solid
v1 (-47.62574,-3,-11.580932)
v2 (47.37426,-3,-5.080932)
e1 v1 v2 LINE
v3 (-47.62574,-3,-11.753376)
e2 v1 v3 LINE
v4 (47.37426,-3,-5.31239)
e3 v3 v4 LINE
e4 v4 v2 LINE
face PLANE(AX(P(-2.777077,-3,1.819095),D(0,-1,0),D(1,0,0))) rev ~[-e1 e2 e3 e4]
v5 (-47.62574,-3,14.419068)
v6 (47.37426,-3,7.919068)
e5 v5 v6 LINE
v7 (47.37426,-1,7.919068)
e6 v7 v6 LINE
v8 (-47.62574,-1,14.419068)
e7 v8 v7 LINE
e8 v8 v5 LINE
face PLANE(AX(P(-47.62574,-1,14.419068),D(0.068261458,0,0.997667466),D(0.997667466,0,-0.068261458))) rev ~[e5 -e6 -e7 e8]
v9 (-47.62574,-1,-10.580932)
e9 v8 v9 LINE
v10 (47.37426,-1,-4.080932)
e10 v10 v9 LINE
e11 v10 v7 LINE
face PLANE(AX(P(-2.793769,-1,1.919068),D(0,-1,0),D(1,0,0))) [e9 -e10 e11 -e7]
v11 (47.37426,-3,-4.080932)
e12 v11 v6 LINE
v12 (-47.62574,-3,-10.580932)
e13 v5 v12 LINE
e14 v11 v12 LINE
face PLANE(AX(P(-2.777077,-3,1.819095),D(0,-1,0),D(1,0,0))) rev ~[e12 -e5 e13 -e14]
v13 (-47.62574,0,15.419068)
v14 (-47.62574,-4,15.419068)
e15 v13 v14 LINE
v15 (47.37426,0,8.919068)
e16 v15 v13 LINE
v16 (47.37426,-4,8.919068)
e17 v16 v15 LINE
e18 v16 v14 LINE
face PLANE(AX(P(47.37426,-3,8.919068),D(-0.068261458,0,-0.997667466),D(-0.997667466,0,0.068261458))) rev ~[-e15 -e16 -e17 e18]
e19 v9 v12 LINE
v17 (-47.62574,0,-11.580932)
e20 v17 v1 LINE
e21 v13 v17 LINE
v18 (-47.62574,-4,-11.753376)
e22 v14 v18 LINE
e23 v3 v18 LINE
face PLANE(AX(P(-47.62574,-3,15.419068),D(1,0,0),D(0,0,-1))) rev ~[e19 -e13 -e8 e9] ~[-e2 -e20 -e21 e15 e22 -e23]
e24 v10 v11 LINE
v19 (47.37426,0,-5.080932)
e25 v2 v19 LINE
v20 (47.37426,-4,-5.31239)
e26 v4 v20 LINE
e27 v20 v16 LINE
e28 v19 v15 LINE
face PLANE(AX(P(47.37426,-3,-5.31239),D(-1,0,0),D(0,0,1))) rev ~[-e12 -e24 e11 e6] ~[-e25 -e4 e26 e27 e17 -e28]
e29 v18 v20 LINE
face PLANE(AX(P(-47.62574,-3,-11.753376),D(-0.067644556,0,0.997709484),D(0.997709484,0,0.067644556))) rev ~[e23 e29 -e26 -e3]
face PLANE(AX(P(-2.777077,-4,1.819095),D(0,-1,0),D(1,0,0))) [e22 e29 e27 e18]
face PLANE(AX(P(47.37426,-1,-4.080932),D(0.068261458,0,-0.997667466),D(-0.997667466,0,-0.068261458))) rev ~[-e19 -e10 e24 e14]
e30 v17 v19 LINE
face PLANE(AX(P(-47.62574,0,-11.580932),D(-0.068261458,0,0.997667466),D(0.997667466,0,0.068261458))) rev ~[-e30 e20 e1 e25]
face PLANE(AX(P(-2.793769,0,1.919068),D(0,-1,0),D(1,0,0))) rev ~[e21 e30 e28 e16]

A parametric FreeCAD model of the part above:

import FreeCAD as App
import Part
import Sketcher
from FreeCAD import Vector
Q = App.Units.Quantity

doc = App.newDocument("Part")
body = doc.addObject("PartDesign::Body", "Body")

# Sketch on XZ plane
sketch1 = doc.addObject("Sketcher::SketchObject", "Sketch")
body.addObject(sketch1)
sketch1.AttachmentSupport = (doc.XZ_Plane, [""])
sketch1.MapMode = "FlatFace"
sketch1.addGeometry([
    Part.LineSegment(Vector(47, 9, 0), Vector(-48, 15, 0)),
    Part.LineSegment(Vector(-48, 15, 0), Vector(-48, -12, 0)),
    Part.LineSegment(Vector(-48, -12, 0), Vector(47, -5, 0)),
    Part.LineSegment(Vector(47, -5, 0), Vector(47, 9, 0)),
], False)
sketch1.addConstraint([
    Sketcher.Constraint("Coincident", 0, 2, 1, 1),
    Sketcher.Constraint("Coincident", 1, 2, 2, 1),
    Sketcher.Constraint("Coincident", 2, 2, 3, 1),
    Sketcher.Constraint("Coincident", 3, 2, 0, 1),
    Sketcher.Constraint("Vertical", 1),
    Sketcher.Constraint("Vertical", 3),
    Sketcher.Constraint("Equal", 0, 2),
    Sketcher.Constraint("DistanceY", 1, 2, 1, 1, Q("27 mm")),
    Sketcher.Constraint("DistanceY", 3, 1, 3, 2, Q("14 mm")),
    Sketcher.Constraint("DistanceX", 1, 2, 2, 2, Q("95 mm")),
    Sketcher.Constraint("DistanceX", 0, 2, -1, 1, Q("47.62574 mm")),
    Sketcher.Constraint("DistanceY", 2, 2, -1, 1, Q("5.080932 mm")),
])
pad1 = doc.addObject("PartDesign::Pad", "Pad")
body.addObject(pad1)
pad1.Profile = sketch1
pad1.Length = 1

# Sketch on XZ plane
sketch2 = doc.addObject("Sketcher::SketchObject", "Sketch001")
body.addObject(sketch2)
sketch2.AttachmentSupport = (doc.XZ_Plane, [""])
sketch2.MapMode = "FlatFace"
sketch2.AttachmentOffset = App.Placement(Vector(0, 0, 1), App.Rotation())
sketch2.addGeometry([
    Part.LineSegment(Vector(47.4, 8.9, 0), Vector(-47.6, 15.4, 0)),  # 0
    Part.LineSegment(Vector(-47.6, 15.4, 0), Vector(-47.6, 14.4, 0)),  # 1
    Part.LineSegment(Vector(-47.6, 14.4, 0), Vector(47.4, 7.9, 0)),  # 2
    Part.LineSegment(Vector(47.4, 7.9, 0), Vector(47.4, 8.9, 0)),  # 3
    Part.LineSegment(Vector(-47.6, -10.6, 0), Vector(-47.6, -11.6, 0)),  # 4
    Part.LineSegment(Vector(-47.6, -11.6, 0), Vector(47.4, -5.1, 0)),  # 5
    Part.LineSegment(Vector(47.4, -5.1, 0), Vector(47.4, -4.1, 0)),  # 6
    Part.LineSegment(Vector(47.4, -4.1, 0), Vector(-47.6, -10.6, 0)),  # 7
], False)
sketch2.addConstraint([
    Sketcher.Constraint("Coincident", 0, 2, 1, 1),
    Sketcher.Constraint("Coincident", 1, 2, 2, 1),
    Sketcher.Constraint("Coincident", 2, 2, 3, 1),
    Sketcher.Constraint("Coincident", 3, 2, 0, 1),
    Sketcher.Constraint("Coincident", 4, 2, 5, 1),
    Sketcher.Constraint("Coincident", 5, 2, 6, 1),
    Sketcher.Constraint("Coincident", 6, 2, 7, 1),
    Sketcher.Constraint("Coincident", 7, 2, 4, 1),
    Sketcher.Constraint("Vertical", 1),
    Sketcher.Constraint("Vertical", 3),
    Sketcher.Constraint("Vertical", 4),
    Sketcher.Constraint("Vertical", 6),
    Sketcher.Constraint("Parallel", 0, 2),
    Sketcher.Constraint("Parallel", 5, 7),
    Sketcher.Constraint("Vertical", 1, 2, 4, 2),
    Sketcher.Constraint("Vertical", 3, 2, 5, 2),
    Sketcher.Constraint("Equal", 3, 4),
    Sketcher.Constraint("Equal", 2, 5),
    Sketcher.Constraint("DistanceY", 1, 2, 1, 1, Q("1 mm")),
    Sketcher.Constraint("DistanceX", 1, 2, 2, 2, Q("95 mm")),
    Sketcher.Constraint("DistanceY", 4, 2, 1, 2, Q("26 mm")),
    Sketcher.Constraint("DistanceY", 5, 2, 2, 2, Q("13 mm")),
    Sketcher.Constraint("DistanceX", 0, 2, -1, 1, Q("47.62574 mm")),
    Sketcher.Constraint("DistanceY", -1, 1, 2, 2, Q("7.919068 mm")),
])
pad2 = doc.addObject("PartDesign::Pad", "Pad001")
body.addObject(pad2)
pad2.Profile = sketch2
pad2.Length = 2

# Sketch on XZ plane
sketch3 = doc.addObject("Sketcher::SketchObject", "Sketch002")
body.addObject(sketch3)
sketch3.AttachmentSupport = (doc.XZ_Plane, [""])
sketch3.MapMode = "FlatFace"
sketch3.AttachmentOffset = App.Placement(Vector(0, 0, 3), App.Rotation())
sketch3.addGeometry([
    Part.LineSegment(Vector(47, 9, 0), Vector(-48, 15, 0)),
    Part.LineSegment(Vector(-48, 15, 0), Vector(-48, -12, 0)),
    Part.LineSegment(Vector(-48, -12, 0), Vector(47, -5, 0)),
    Part.LineSegment(Vector(47, -5, 0), Vector(47, 9, 0)),
], False)
sketch3.addConstraint([
    Sketcher.Constraint("Coincident", 0, 2, 1, 1),
    Sketcher.Constraint("Coincident", 1, 2, 2, 1),
    Sketcher.Constraint("Coincident", 2, 2, 3, 1),
    Sketcher.Constraint("Coincident", 3, 2, 0, 1),
    Sketcher.Constraint("Vertical", 1),
    Sketcher.Constraint("Vertical", 3),
    Sketcher.Constraint("DistanceX", 1, 2, 2, 2, Q("95 mm")),
    Sketcher.Constraint("DistanceY", 3, 2, 0, 2, Q("6.5 mm")),
    Sketcher.Constraint("Distance", 2, Q("95.218099 mm")),
    Sketcher.Constraint("DistanceY", 1, 2, 1, 1, Q("27.172444 mm")),
    Sketcher.Constraint("DistanceX", 0, 2, -1, 1, Q("47.62574 mm")),
    Sketcher.Constraint("DistanceY", 2, 2, -1, 1, Q("5.31239 mm")),
])
pad3 = doc.addObject("PartDesign::Pad", "Pad002")
body.addObject(pad3)
pad3.Profile = sketch3
pad3.Length = 1

doc.recompute()
